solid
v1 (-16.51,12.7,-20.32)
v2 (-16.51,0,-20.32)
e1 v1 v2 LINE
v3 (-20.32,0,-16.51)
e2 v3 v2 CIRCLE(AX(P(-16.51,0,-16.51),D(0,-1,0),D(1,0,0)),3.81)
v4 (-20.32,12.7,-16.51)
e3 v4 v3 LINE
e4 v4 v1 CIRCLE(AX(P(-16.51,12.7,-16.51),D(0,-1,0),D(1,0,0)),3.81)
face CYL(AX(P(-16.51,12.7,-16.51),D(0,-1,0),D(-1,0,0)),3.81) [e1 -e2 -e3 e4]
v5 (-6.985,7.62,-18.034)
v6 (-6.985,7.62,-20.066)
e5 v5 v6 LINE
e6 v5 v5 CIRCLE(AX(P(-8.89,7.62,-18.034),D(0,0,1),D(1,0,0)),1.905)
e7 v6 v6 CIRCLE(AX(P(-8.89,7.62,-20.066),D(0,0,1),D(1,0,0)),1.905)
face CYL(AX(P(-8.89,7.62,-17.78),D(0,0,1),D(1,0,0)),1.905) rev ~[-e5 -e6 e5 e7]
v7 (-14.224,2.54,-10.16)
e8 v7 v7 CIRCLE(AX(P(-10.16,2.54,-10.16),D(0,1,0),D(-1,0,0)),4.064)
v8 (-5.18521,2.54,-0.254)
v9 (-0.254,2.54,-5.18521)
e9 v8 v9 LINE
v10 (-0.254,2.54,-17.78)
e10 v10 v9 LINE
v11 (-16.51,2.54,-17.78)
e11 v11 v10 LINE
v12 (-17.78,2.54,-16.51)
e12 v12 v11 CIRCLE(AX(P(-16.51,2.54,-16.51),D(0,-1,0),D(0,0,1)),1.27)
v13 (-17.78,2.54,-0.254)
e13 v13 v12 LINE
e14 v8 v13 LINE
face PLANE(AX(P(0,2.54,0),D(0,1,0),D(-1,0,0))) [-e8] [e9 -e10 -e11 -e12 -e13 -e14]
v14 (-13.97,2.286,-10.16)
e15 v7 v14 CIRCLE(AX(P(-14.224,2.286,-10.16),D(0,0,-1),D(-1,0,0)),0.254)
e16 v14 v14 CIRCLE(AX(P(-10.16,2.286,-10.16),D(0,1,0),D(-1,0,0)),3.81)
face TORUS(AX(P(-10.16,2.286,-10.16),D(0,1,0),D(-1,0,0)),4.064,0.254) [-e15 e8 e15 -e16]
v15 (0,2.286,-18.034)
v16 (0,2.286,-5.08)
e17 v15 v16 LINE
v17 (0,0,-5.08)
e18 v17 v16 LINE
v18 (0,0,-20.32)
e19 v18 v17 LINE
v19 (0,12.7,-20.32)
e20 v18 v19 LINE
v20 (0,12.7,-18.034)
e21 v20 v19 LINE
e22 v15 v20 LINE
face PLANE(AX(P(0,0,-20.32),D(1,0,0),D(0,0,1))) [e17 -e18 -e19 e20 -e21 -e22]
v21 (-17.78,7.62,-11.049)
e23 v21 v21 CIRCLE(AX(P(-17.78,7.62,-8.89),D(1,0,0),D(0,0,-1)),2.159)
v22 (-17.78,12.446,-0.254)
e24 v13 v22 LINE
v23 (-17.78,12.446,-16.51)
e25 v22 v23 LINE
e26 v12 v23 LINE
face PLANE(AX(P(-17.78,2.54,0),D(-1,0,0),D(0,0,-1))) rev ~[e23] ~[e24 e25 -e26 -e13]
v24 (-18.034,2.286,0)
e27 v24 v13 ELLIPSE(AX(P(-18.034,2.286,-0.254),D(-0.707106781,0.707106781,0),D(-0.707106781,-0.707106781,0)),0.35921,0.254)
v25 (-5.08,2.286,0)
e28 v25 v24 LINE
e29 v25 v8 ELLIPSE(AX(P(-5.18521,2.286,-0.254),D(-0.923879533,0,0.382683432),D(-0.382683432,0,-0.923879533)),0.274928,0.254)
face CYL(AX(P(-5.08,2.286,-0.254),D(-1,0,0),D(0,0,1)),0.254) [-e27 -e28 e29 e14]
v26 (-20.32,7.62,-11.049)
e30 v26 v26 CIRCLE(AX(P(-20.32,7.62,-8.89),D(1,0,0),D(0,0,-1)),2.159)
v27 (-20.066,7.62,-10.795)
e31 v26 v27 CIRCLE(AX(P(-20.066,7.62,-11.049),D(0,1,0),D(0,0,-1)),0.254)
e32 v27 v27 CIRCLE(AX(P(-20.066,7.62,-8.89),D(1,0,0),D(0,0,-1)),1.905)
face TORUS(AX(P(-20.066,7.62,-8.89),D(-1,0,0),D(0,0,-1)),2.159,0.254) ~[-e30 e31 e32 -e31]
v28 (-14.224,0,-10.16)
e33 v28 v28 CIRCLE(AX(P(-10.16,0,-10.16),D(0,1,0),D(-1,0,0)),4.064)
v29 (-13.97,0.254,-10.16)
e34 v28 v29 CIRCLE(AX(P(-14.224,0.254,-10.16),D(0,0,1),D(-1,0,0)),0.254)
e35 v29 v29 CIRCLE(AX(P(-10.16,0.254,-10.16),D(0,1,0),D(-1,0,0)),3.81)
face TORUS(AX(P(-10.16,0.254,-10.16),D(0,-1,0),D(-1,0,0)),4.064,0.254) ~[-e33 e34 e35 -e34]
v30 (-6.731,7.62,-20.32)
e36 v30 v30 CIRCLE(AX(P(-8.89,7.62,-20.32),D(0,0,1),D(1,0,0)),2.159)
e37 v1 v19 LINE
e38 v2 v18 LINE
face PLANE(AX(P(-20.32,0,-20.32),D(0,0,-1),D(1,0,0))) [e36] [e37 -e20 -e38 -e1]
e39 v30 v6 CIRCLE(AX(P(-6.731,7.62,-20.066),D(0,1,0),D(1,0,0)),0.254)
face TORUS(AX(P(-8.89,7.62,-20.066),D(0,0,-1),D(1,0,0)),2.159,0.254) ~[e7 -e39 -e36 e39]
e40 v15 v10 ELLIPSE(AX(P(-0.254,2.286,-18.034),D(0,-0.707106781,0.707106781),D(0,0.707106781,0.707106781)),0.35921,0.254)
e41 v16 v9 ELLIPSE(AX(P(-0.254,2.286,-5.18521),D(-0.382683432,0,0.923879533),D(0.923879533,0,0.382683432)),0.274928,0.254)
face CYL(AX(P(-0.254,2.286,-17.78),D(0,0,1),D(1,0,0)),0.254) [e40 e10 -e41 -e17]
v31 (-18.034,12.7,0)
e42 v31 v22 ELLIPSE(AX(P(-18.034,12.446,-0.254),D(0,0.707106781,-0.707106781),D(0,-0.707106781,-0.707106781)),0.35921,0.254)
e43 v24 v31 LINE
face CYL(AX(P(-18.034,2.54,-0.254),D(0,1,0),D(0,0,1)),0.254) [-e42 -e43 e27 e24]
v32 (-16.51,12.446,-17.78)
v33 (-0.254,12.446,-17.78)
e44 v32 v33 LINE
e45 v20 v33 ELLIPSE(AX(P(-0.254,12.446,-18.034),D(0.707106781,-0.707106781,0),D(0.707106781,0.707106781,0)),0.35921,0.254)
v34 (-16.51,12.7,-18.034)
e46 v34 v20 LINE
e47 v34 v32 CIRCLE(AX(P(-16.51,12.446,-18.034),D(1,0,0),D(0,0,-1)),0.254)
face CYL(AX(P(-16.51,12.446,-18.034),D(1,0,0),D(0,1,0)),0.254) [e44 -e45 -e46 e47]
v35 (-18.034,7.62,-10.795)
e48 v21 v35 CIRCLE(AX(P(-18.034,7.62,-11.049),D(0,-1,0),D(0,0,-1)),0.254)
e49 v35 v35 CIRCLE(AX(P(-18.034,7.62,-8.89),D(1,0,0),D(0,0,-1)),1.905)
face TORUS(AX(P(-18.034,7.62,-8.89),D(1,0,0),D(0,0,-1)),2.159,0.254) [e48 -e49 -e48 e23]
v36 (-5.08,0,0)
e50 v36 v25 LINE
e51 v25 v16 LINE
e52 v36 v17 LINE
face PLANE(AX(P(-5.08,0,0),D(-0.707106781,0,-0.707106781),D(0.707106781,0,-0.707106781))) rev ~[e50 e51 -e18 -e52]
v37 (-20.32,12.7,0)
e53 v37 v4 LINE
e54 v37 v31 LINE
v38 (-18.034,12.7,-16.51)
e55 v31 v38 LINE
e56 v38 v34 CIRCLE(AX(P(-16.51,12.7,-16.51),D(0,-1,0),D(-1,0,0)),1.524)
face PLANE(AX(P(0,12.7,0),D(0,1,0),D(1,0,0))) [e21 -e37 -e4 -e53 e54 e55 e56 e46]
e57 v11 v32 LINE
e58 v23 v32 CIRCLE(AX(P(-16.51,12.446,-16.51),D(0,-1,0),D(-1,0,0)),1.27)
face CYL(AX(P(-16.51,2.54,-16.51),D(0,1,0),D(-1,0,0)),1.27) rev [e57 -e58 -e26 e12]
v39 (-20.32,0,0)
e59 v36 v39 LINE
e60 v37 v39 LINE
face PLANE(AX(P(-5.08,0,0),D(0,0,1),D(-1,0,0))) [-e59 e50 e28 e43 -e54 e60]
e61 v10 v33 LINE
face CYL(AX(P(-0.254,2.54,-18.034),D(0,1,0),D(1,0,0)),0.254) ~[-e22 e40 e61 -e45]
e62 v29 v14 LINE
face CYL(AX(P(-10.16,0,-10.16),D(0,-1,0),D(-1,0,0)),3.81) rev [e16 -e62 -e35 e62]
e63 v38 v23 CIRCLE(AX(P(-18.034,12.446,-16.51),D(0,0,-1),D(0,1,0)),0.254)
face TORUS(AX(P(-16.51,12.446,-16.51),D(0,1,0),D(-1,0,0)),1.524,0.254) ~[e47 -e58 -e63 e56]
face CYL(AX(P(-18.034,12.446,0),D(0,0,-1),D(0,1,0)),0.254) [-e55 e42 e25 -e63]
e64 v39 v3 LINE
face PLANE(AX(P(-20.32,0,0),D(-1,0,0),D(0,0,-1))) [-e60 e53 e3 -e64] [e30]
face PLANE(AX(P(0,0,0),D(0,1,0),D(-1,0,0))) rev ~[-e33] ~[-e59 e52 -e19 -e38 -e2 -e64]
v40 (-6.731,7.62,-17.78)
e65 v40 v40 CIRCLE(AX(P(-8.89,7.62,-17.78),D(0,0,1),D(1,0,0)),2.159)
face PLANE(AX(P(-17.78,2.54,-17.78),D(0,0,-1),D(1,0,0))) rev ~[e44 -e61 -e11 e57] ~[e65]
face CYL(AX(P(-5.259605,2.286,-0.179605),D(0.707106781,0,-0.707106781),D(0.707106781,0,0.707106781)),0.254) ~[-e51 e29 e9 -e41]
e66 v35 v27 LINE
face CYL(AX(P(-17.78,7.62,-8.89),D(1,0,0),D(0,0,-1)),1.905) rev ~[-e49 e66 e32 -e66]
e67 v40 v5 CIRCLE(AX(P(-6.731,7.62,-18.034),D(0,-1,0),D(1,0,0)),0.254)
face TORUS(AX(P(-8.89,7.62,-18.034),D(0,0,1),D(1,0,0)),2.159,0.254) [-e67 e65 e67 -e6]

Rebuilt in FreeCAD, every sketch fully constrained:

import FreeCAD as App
import Part
import Sketcher
from FreeCAD import Vector
Q = App.Units.Quantity


def edges_at(feature, points):
    """Names of the edges that pass closest to the given points."""
    edges = feature.Shape.Edges
    near = lambda p: min(range(len(edges)), key=lambda i: edges[i].distToShape(Part.Vertex(*p))[0])
    return sorted({f"Edge{near(p) + 1}" for p in points})

doc = App.newDocument("Part")
params = doc.addObject("Spreadsheet::Sheet", "Params")
for row, (alias, value) in enumerate([
    ("sketch1_diameter", "0.3 in"),
    ("sketch1_width", "0.8 in"),
    ("pad1_length", "0.1 in"),
    ("sketch2_width", "0.1 in"),
    ("sketch2_width2", "0.7 in"),
    ("pad2_length", "0.4 in"),
    ("fillet_radius", "0.05 in"),
    ("fillet2_radius", "0.15 in"),
    ("sketch3_diameter", "0.15 in"),
    ("pocket1_length", "0.4 in"),
    ("sketch4_diameter", "0.15 in"),
    ("pocket2_length", "0.4 in"),
    ("fillet3_radius", "0.01 in"),
], start=1):
    params.set(f"A{row}", alias)
    params.set(f"B{row}", "=" + value)
    params.setAlias(f"B{row}", alias)

body = doc.addObject("PartDesign::Body", "Body")

# Sketch on XZ plane
sketch1 = body.newObject("Sketcher::SketchObject", "Sketch")
sketch1.AttachmentSupport = (doc.getObject("XZ_Plane"), [""])
sketch1.MapMode = "FlatFace"
sketch1.addGeometry([
    Part.LineSegment(Vector(-20.32, 0, 0), Vector(-5.08, 0, 0)),  # 0
    Part.LineSegment(Vector(-5.08, 0, 0), Vector(0, -5.08, 0)),  # 1
    Part.LineSegment(Vector(0, -5.08, 0), Vector(0, -20.32, 0)),  # 2
    Part.LineSegment(Vector(0, -20.32, 0), Vector(-20.32, -20.32, 0)),  # 3
    Part.LineSegment(Vector(-20.32, -20.32, 0), Vector(-20.32, 0, 0)),  # 4
    Part.Circle(Vector(-10.16, -10.16, 0), Vector(0, 0, 1), 3.81),  # 5
], False)
sketch1.addConstraint([
    Sketcher.Constraint("Coincident", 0, 2, 1, 1),
    Sketcher.Constraint("Coincident", 1, 2, 2, 1),
    Sketcher.Constraint("Coincident", 2, 2, 3, 1),
    Sketcher.Constraint("Coincident", 3, 2, 4, 1),
    Sketcher.Constraint("Coincident", 4, 2, 0, 1),
    Sketcher.Constraint("Horizontal", 0),
    Sketcher.Constraint("Vertical", 2),
    Sketcher.Constraint("Horizontal", 3),
    Sketcher.Constraint("Vertical", 4),
    Sketcher.Constraint("PointOnObject", 0, 2, -1),
    Sketcher.Constraint("PointOnObject", 1, 2, -2),
    Sketcher.Constraint("Equal", 0, 2),
    Sketcher.Constraint("Equal", 3, 4),
    Sketcher.Constraint("Diameter", 5, Q("0.3 in")),
    Sketcher.Constraint("DistanceX", 3, 2, 3, 1, Q("0.8 in")),
    Sketcher.Constraint("DistanceX", 5, 3, -1, 1, Q("0.4 in")),
    Sketcher.Constraint("DistanceY", 5, 3, -1, 1, Q("0.4 in")),
    Sketcher.Constraint("DistanceX", 0, 2, -1, 1, Q("0.2 in")),
])
sketch1.setExpression("Constraints[13]", "Params.sketch1_diameter")
sketch1.setExpression("Constraints[14]", "Params.sketch1_width")
pad1 = body.newObject("PartDesign::Pad", "Pad")
pad1.Profile = sketch1
pad1.setExpression("Length", "Params.pad1_length")
pad1.Reversed = True

# Sketch on XZ plane
sketch2 = body.newObject("Sketcher::SketchObject", "Sketch001")
sketch2.AttachmentSupport = (doc.getObject("XZ_Plane"), [""])
sketch2.MapMode = "FlatFace"
sketch2.AttachmentOffset = App.Placement(Vector(0, 0, -0.1 * 25.4), App.Rotation())
sketch2.addGeometry([
    Part.LineSegment(Vector(-20.32, -20.32, 0), Vector(-20.32, 0, 0)),  # 0
    Part.LineSegment(Vector(-20.32, 0, 0), Vector(-17.78, 0, 0)),  # 1
    Part.LineSegment(Vector(-17.78, 0, 0), Vector(-17.78, -17.78, 0)),  # 2
    Part.LineSegment(Vector(-17.78, -17.78, 0), Vector(0, -17.78, 0)),  # 3
    Part.LineSegment(Vector(0, -17.78, 0), Vector(0, -20.32, 0)),  # 4
    Part.LineSegment(Vector(0, -20.32, 0), Vector(-20.32, -20.32, 0)),  # 5
], False)
sketch2.addConstraint([
    Sketcher.Constraint("Coincident", 0, 2, 1, 1),
    Sketcher.Constraint("Coincident", 1, 2, 2, 1),
    Sketcher.Constraint("Coincident", 2, 2, 3, 1),
    Sketcher.Constraint("Coincident", 3, 2, 4, 1),
    Sketcher.Constraint("Coincident", 4, 2, 5, 1),
    Sketcher.Constraint("Coincident", 5, 2, 0, 1),
    Sketcher.Constraint("Vertical", 0),
    Sketcher.Constraint("Horizontal", 1),
    Sketcher.Constraint("Vertical", 2),
    Sketcher.Constraint("Horizontal", 3),
    Sketcher.Constraint("Vertical", 4),
    Sketcher.Constraint("Horizontal", 5),
    Sketcher.Constraint("PointOnObject", 0, 2, -1),
    Sketcher.Constraint("PointOnObject", 3, 2, -2),
    Sketcher.Constraint("Equal", 5, 0),
    Sketcher.Constraint("Equal", 3, 2),
    Sketcher.Constraint("DistanceX", 1, 1, 1, 2, Q("0.1 in")),
    Sketcher.Constraint("DistanceX", 3, 1, 3, 2, Q("0.7 in")),
])
sketch2.setExpression("Constraints[16]", "Params.sketch2_width")
sketch2.setExpression("Constraints[17]", "Params.sketch2_width2")
pad2 = body.newObject("PartDesign::Pad", "Pad001")
pad2.Profile = sketch2
pad2.setExpression("Length", "Params.pad2_length")
pad2.Reversed = True
doc.recompute()

fillet = body.newObject("PartDesign::Fillet", "Fillet")
fillet.Base = (pad2, edges_at(pad2, [(-17.78, 7.62, -17.78)]))
fillet.setExpression("Radius", "Params.fillet_radius")
doc.recompute()

fillet2 = body.newObject("PartDesign::Fillet", "Fillet001")
fillet2.Base = (fillet, edges_at(fillet, [(-20.32, 6.35, -20.32)]))
fillet2.setExpression("Radius", "Params.fillet2_radius")

# Sketch on YZ plane
sketch3 = body.newObject("Sketcher::SketchObject", "Sketch002")
sketch3.AttachmentSupport = (doc.getObject("YZ_Plane"), [""])
sketch3.MapMode = "FlatFace"
sketch3.AttachmentOffset = App.Placement(Vector(0, 0, -0.7 * 25.4), App.Rotation())
sketch3.addGeometry(Part.Circle(Vector(7.62, -8.89, 0), Vector(0, 0, 1), 1.905), False)
sketch3.addConstraint([
    Sketcher.Constraint("Diameter", 0, Q("0.15 in")),
    Sketcher.Constraint("DistanceY", 0, 3, -1, 1, Q("0.35 in")),
    Sketcher.Constraint("DistanceX", -1, 1, 0, 3, Q("0.3 in")),
])
sketch3.setExpression("Constraints[0]", "Params.sketch3_diameter")
pocket1 = body.newObject("PartDesign::Pocket", "Pocket")
pocket1.Profile = sketch3
pocket1.setExpression("Length", "Params.pocket1_length")

# Sketch on XY plane
sketch4 = body.newObject("Sketcher::SketchObject", "Sketch003")
sketch4.AttachmentSupport = (doc.getObject("XY_Plane"), [""])
sketch4.MapMode = "FlatFace"
sketch4.AttachmentOffset = App.Placement(Vector(0, 0, -0.7 * 25.4), App.Rotation())
sketch4.addGeometry(Part.Circle(Vector(-8.89, 7.62, 0), Vector(0, 0, 1), 1.905), False)
sketch4.addConstraint([
    Sketcher.Constraint("Diameter", 0, Q("0.15 in")),
    Sketcher.Constraint("DistanceX", 0, 3, -1, 1, Q("0.35 in")),
    Sketcher.Constraint("DistanceY", -1, 1, 0, 3, Q("0.3 in")),
])
sketch4.setExpression("Constraints[0]", "Params.sketch4_diameter")
pocket2 = body.newObject("PartDesign::Pocket", "Pocket001")
pocket2.Profile = sketch4
pocket2.setExpression("Length", "Params.pocket2_length")
doc.recompute()

fillet3 = body.newObject("PartDesign::Fillet", "Fillet002")
fillet3.Base = (pocket2, edges_at(pocket2, [
    (-17.408, 12.7, -17.408),
    (-8.255, 12.7, -17.78),
    (-17.78, 12.7, -8.255),
    (0, 7.62, -17.78),
    (0, 2.54, -11.43),
    (-2.54, 2.54, -2.54),
    (-11.43, 2.54, 0),
    (-17.78, 7.62, 0),
    (-10.795, 7.62, -17.78),
    (-17.78, 7.62, -6.985),
    (-10.795, 7.62, -20.32),
    (-20.32, 7.62, -6.985),
    (-6.35, 0, -10.16),
    (-6.35, 2.54, -10.16),
]))
fillet3.setExpression("Radius", "Params.fillet3_radius")

doc.recompute()
